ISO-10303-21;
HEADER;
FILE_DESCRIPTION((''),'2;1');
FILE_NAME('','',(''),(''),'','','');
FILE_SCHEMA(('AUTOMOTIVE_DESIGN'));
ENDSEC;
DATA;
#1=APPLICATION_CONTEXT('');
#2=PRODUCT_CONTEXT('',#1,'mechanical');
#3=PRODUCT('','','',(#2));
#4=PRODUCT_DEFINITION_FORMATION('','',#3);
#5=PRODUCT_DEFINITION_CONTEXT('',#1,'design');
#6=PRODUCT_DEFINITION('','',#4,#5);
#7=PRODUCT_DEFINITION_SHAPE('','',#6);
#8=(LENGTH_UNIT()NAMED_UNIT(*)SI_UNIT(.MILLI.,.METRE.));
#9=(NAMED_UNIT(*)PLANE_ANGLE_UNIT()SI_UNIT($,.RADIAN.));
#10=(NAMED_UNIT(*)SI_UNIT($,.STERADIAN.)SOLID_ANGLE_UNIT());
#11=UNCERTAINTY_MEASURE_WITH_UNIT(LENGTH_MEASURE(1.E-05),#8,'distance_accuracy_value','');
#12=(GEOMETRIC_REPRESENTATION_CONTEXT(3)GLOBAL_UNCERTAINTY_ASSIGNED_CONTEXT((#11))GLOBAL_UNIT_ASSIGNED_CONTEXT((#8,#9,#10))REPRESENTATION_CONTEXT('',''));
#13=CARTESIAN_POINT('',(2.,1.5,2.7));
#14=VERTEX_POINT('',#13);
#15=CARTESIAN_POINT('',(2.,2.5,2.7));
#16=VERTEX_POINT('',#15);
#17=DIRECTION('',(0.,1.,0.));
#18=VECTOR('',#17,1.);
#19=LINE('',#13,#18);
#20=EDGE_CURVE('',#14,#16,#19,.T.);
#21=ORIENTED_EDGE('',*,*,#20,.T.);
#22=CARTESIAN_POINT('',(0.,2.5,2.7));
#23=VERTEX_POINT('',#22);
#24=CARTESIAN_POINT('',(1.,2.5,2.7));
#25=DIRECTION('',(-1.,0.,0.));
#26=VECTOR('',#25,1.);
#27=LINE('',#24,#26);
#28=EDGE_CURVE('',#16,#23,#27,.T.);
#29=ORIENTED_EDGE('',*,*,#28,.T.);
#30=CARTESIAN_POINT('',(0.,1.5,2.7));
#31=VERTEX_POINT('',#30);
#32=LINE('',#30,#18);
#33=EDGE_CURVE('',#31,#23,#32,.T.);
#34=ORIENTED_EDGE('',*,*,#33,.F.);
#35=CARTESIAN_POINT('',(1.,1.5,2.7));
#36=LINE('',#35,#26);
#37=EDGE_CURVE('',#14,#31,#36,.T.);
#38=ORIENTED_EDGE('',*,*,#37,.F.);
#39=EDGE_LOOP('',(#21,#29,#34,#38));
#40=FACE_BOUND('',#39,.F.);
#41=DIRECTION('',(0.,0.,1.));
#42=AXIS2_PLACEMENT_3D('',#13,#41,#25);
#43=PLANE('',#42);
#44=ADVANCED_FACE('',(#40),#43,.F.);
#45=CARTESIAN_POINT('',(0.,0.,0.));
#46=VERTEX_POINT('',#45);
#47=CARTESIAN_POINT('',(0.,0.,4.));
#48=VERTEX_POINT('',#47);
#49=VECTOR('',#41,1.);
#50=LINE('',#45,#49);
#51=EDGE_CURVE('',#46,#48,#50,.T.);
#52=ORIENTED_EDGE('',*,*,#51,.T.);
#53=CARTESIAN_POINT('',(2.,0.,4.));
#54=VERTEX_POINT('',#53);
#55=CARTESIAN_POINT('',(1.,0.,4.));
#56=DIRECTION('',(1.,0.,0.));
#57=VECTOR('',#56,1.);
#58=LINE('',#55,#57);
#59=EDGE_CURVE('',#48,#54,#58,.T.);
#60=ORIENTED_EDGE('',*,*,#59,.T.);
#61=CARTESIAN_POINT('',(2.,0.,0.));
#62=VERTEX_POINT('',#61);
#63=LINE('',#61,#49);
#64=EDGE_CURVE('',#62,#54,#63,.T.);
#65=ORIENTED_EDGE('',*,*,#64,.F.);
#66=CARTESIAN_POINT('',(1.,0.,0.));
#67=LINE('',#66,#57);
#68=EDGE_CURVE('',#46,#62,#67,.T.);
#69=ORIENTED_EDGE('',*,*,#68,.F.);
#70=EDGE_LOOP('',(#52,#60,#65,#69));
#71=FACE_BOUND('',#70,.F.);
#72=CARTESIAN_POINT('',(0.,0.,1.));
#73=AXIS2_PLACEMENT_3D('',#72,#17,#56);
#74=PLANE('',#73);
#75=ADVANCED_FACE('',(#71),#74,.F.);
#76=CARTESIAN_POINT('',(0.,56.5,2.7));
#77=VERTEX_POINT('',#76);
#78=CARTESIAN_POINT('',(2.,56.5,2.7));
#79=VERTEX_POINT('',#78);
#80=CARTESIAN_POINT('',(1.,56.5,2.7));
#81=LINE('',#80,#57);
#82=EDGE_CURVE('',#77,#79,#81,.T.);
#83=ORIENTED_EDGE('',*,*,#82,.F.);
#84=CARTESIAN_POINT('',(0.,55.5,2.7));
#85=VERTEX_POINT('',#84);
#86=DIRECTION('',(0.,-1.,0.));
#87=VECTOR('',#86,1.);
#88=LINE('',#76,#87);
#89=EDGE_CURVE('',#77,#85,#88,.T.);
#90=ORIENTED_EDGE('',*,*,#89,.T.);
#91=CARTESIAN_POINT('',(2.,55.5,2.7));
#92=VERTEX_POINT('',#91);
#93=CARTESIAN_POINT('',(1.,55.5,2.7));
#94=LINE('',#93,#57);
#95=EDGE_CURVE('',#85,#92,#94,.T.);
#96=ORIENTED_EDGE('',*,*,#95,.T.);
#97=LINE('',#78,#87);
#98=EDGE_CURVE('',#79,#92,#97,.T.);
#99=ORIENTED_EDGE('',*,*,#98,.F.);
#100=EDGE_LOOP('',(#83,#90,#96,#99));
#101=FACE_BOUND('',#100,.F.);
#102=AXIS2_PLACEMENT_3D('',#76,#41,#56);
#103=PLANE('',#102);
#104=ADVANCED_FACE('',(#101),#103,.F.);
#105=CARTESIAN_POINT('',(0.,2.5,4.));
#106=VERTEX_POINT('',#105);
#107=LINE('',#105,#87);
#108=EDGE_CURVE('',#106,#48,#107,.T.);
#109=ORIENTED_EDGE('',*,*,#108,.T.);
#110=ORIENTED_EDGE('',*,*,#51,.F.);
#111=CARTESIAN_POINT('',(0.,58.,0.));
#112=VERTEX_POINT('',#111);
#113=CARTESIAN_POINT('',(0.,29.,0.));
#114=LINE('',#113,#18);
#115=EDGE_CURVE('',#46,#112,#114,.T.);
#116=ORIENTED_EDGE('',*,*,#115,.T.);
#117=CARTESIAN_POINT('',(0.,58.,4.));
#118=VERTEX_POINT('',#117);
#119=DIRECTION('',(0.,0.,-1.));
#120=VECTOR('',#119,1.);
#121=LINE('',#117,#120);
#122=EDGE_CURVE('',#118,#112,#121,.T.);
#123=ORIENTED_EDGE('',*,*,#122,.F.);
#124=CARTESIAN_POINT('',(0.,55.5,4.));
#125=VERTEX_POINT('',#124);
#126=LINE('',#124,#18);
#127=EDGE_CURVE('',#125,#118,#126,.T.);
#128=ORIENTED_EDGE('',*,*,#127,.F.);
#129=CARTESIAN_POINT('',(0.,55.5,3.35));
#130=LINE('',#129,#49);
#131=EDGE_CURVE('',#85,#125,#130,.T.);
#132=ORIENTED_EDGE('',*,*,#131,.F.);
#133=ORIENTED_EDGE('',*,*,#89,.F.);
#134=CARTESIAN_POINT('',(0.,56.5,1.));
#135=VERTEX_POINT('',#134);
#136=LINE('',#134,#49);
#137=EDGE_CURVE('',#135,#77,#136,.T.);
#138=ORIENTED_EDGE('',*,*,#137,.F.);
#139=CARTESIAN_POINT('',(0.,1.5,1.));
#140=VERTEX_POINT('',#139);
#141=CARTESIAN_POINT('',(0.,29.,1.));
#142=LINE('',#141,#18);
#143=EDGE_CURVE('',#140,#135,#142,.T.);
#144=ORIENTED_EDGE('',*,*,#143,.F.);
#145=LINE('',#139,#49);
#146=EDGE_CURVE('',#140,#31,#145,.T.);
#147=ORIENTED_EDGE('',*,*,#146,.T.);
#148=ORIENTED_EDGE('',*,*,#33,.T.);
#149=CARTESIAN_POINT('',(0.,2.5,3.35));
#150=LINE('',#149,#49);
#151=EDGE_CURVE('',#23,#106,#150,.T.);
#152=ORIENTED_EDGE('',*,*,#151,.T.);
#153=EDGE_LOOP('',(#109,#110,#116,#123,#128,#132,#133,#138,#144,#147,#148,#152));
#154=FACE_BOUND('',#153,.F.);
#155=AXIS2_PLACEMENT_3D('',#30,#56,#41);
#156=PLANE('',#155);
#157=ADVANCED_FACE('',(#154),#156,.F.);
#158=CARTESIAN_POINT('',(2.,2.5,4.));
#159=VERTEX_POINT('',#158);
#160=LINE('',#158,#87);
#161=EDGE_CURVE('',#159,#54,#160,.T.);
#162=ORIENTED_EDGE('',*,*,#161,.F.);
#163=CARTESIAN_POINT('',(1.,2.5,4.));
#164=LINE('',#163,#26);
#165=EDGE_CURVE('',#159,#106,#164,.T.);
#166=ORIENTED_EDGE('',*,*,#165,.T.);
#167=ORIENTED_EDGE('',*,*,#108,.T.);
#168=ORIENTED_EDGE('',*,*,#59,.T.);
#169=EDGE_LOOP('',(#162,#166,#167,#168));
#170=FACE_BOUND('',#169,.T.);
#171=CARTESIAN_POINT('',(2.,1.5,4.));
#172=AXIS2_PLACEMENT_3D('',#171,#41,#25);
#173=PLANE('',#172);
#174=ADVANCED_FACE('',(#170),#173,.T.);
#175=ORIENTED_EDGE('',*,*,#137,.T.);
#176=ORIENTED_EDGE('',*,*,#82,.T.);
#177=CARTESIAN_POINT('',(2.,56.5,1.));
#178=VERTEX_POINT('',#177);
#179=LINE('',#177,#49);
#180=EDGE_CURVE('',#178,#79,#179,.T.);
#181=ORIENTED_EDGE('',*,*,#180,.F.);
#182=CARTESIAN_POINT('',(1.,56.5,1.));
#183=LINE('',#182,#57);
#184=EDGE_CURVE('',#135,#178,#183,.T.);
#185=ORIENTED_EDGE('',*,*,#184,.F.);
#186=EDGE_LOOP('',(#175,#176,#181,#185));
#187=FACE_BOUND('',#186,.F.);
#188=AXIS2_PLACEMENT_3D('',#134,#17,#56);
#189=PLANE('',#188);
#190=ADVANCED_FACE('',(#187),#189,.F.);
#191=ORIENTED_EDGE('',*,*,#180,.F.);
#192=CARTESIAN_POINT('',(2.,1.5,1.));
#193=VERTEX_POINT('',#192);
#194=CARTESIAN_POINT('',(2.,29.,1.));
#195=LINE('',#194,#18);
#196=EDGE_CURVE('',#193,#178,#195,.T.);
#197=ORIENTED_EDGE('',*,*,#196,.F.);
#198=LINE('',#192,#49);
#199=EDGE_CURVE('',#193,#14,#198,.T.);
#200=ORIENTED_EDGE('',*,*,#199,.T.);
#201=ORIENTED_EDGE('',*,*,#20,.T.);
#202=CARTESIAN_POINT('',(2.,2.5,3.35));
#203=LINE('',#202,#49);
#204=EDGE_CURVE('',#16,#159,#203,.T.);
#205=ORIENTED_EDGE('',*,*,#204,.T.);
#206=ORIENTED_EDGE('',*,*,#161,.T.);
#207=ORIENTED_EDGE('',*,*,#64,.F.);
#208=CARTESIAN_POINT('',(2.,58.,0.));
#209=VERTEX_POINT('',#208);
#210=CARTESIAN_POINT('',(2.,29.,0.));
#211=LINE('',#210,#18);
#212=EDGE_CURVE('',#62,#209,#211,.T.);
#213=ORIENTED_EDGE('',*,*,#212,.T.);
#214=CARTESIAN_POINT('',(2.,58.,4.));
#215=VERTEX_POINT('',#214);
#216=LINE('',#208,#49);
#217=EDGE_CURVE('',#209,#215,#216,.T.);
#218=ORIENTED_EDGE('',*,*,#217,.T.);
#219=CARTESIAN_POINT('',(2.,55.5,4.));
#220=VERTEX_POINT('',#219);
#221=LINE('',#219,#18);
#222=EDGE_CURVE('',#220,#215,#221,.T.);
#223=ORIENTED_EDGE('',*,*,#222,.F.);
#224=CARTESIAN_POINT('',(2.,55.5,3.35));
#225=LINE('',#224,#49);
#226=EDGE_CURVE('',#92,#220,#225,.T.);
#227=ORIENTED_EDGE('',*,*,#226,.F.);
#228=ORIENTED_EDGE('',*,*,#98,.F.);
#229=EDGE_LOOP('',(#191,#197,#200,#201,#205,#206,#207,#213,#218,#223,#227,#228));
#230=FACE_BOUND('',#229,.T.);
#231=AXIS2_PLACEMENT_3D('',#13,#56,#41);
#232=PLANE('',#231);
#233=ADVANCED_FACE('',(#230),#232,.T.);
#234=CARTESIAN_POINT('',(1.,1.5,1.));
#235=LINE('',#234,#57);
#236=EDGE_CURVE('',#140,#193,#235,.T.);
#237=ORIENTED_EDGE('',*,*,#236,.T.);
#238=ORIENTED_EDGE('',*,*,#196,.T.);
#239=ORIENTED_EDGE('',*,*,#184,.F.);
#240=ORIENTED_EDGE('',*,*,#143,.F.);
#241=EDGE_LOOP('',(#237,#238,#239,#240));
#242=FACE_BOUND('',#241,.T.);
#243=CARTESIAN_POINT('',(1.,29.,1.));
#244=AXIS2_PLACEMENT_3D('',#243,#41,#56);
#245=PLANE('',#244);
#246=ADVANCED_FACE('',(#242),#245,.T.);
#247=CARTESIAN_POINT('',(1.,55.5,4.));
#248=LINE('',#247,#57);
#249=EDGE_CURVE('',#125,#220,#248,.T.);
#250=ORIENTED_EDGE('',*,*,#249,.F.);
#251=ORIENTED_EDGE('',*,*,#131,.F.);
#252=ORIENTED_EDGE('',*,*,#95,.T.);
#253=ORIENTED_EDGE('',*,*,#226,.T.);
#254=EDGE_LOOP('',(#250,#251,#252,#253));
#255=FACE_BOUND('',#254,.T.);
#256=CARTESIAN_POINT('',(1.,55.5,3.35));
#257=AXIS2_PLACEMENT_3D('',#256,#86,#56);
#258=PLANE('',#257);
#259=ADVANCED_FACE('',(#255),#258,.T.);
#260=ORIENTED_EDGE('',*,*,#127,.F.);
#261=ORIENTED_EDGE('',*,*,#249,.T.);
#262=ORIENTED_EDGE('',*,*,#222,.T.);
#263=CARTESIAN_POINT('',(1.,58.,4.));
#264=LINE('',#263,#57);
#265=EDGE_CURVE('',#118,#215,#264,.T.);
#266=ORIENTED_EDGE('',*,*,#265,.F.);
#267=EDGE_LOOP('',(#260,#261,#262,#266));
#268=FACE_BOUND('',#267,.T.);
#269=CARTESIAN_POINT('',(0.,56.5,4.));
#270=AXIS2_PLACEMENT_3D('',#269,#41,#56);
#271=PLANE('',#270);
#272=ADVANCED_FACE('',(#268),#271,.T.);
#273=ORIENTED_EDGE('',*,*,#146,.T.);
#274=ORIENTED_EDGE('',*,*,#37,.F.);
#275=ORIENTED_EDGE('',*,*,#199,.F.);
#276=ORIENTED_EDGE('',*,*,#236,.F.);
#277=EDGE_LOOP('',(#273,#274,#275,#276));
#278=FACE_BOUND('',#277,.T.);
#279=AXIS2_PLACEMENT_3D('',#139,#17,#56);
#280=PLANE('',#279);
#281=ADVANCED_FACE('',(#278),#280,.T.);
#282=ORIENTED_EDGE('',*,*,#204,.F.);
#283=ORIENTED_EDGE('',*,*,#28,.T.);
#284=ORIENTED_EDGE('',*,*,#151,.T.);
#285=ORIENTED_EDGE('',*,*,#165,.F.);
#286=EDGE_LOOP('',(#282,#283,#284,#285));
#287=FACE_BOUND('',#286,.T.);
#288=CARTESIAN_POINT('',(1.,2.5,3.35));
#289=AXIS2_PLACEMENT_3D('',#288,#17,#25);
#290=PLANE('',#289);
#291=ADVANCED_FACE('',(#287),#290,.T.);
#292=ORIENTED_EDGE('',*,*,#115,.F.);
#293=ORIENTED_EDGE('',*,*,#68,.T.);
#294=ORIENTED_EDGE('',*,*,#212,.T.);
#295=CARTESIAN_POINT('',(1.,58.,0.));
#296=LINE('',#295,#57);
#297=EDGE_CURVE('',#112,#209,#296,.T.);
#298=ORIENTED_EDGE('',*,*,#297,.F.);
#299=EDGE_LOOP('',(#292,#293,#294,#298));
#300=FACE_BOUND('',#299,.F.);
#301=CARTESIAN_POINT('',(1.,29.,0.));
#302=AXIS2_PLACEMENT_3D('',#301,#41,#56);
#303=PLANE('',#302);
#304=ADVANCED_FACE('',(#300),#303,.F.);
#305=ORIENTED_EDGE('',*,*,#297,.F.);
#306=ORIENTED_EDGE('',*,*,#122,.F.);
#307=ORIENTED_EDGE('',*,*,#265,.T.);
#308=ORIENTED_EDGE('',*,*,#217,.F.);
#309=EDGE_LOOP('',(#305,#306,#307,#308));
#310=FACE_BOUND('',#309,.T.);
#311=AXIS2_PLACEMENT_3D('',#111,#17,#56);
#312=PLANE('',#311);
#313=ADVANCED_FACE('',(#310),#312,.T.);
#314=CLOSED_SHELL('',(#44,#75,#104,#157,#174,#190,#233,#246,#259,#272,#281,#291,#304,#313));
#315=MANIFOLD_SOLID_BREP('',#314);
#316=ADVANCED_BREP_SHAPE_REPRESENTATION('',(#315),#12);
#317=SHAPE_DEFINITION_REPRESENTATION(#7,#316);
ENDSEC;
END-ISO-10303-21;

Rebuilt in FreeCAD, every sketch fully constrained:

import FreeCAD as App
import Part
import Sketcher

V = App.Vector
Q = App.Units.Quantity


def add_polygon(sketch, points):
    """Adds a closed chain of lines whose ends are joined by coincident constraints."""
    first, n = sketch.GeometryCount, len(points)
    for a, b in zip(points, points[1:] + points[:1]):
        sketch.addGeometry(Part.LineSegment(App.Vector(*a, 0), App.Vector(*b, 0)), False)
    for i in range(n):
        sketch.addConstraint(Sketcher.Constraint("Coincident", first + i, 2, first + (i + 1) % n, 1))

doc = App.newDocument("Part")
params = doc.addObject("Spreadsheet::Sheet", "Params")
for row, (alias, value) in enumerate([
    ("sketch1_width", "2 mm"),
    ("sketch1_height", "58 mm"),
    ("pad1_length", "1 mm"),
    ("sketch2_width", "2 mm"),
    ("sketch2_height", "1.5 mm"),
    ("pad2_length", "3 mm"),
    ("sketch3_width", "2 mm"),
    ("sketch3_height", "1.3 mm"),
    ("pad3_length", "1 mm"),
    ("sketch4_width", "2 mm"),
    ("sketch4_height", "1.3 mm"),
    ("pad4_length", "1 mm"),
], start=1):
    params.set(f"A{row}", alias)
    params.set(f"B{row}", "=" + value)
    params.setAlias(f"B{row}", alias)

body = doc.addObject("PartDesign::Body", "Body")

sketch1 = body.newObject("Sketcher::SketchObject", "Sketch")
sketch1.AttachmentSupport = (doc.getObject("XY_Plane"), [""])
sketch1.MapMode = "FlatFace"
add_polygon(sketch1, [(0, 58), (0, 0), (2, 0), (2, 58)])
sketch1.addConstraint([
    Sketcher.Constraint("Vertical", 0),
    Sketcher.Constraint("Horizontal", 1),
    Sketcher.Constraint("Vertical", 2),
    Sketcher.Constraint("Horizontal", 3),
    Sketcher.Constraint("Coincident", 0, 2, -1, 1),
    Sketcher.Constraint("DistanceX", 1, 1, 1, 2, Q("2 mm")),
    Sketcher.Constraint("DistanceY", 0, 2, 0, 1, Q("58 mm")),
])
sketch1.setExpression("Constraints[9]", "Params.sketch1_width")
sketch1.setExpression("Constraints[10]", "Params.sketch1_height")
pad1 = body.newObject("PartDesign::Pad", "Pad")
pad1.Profile = sketch1
pad1.setExpression("Length", "Params.pad1_length")

sketch2 = body.newObject("Sketcher::SketchObject", "Sketch001")
sketch2.AttachmentSupport = (doc.getObject("XY_Plane"), [""])
sketch2.MapMode = "FlatFace"
sketch2.AttachmentOffset = App.Placement(V(0, 0, 1), App.Rotation())
add_polygon(sketch2, [(0, 1.5), (0, 0), (2, 0), (2, 1.5)])
add_polygon(sketch2, [(0, 58), (0, 56.5), (2, 56.5), (2, 58)])
sketch2.addConstraint([
    Sketcher.Constraint("Vertical", 0),
    Sketcher.Constraint("Horizontal", 1),
    Sketcher.Constraint("Vertical", 2),
    Sketcher.Constraint("Horizontal", 3),
    Sketcher.Constraint("Vertical", 4),
    Sketcher.Constraint("Horizontal", 5),
    Sketcher.Constraint("Vertical", 6),
    Sketcher.Constraint("Horizontal", 7),
    Sketcher.Constraint("Coincident", 0, 2, -1, 1),
    Sketcher.Constraint("PointOnObject", 4, 2, -2),
    Sketcher.Constraint("Vertical", 2, 2, 5, 2),
    Sketcher.Constraint("Equal", 2, 4),
    Sketcher.Constraint("DistanceX", 1, 1, 1, 2, Q("2 mm")),
    Sketcher.Constraint("DistanceY", 0, 2, 0, 1, Q("1.5 mm")),
    Sketcher.Constraint("DistanceY", -1, 1, 6, 2, Q("58 mm")),
])
sketch2.setExpression("Constraints[20]", "Params.sketch2_width")
sketch2.setExpression("Constraints[21]", "Params.sketch2_height")
pad2 = body.newObject("PartDesign::Pad", "Pad001")
pad2.Profile = sketch2
pad2.setExpression("Length", "Params.pad2_length")

sketch3 = body.newObject("Sketcher::SketchObject", "Sketch002")
sketch3.AttachmentSupport = (doc.getObject("XZ_Plane"), [""])
sketch3.MapMode = "FlatFace"
sketch3.AttachmentOffset = App.Placement(V(0, 0, -56.5), App.Rotation())
add_polygon(sketch3, [(0, 4), (0, 2.7), (2, 2.7), (2, 4)])
sketch3.addConstraint([
    Sketcher.Constraint("Vertical", 0),
    Sketcher.Constraint("Horizontal", 1),
    Sketcher.Constraint("Vertical", 2),
    Sketcher.Constraint("Horizontal", 3),
    Sketcher.Constraint("PointOnObject", 0, 2, -2),
    Sketcher.Constraint("DistanceX", 1, 1, 1, 2, Q("2 mm")),
    Sketcher.Constraint("DistanceY", 0, 2, 0, 1, Q("1.3 mm")),
    Sketcher.Constraint("DistanceY", -1, 1, 2, 2, Q("4 mm")),
])
sketch3.setExpression("Constraints[9]", "Params.sketch3_width")
sketch3.setExpression("Constraints[10]", "Params.sketch3_height")
pad3 = body.newObject("PartDesign::Pad", "Pad002")
pad3.Profile = sketch3
pad3.setExpression("Length", "Params.pad3_length")

sketch4 = body.newObject("Sketcher::SketchObject", "Sketch003")
sketch4.AttachmentSupport = (doc.getObject("XZ_Plane"), [""])
sketch4.MapMode = "FlatFace"
sketch4.AttachmentOffset = App.Placement(V(0, 0, -1.5), App.Rotation())
add_polygon(sketch4, [(2, 4), (2, 2.7), (0, 2.7), (0, 4)])
sketch4.addConstraint([
    Sketcher.Constraint("Vertical", 0),
    Sketcher.Constraint("Horizontal", 1),
    Sketcher.Constraint("Vertical", 2),
    Sketcher.Constraint("Horizontal", 3),
    Sketcher.Constraint("PointOnObject", 1, 2, -2),
    Sketcher.Constraint("DistanceX", 1, 2, 1, 1, Q("2 mm")),
    Sketcher.Constraint("DistanceY", 0, 2, 0, 1, Q("1.3 mm")),
    Sketcher.Constraint("DistanceY", -1, 1, 2, 2, Q("4 mm")),
])
sketch4.setExpression("Constraints[9]", "Params.sketch4_width")
sketch4.setExpression("Constraints[10]", "Params.sketch4_height")
pad4 = body.newObject("PartDesign::Pad", "Pad003")
pad4.Profile = sketch4
pad4.setExpression("Length", "Params.pad4_length")
pad4.Reversed = True

doc.recompute()
